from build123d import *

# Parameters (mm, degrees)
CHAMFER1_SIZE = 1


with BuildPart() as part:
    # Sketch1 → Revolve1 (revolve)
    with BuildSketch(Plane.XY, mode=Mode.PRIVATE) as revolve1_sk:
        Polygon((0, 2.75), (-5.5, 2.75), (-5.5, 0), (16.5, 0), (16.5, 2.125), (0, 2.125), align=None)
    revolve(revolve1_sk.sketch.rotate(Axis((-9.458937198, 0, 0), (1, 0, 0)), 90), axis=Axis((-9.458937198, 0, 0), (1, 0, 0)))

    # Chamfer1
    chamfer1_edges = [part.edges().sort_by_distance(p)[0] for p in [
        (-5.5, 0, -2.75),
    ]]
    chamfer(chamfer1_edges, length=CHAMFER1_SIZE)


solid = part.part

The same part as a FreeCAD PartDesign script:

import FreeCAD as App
import Part
import Sketcher

V = App.Vector
Q = App.Units.Quantity


def edges_at(feature, points):
    """Names of the edges that pass closest to the given points."""
    edges = feature.Shape.Edges
    near = lambda p: min(range(len(edges)), key=lambda i: edges[i].distToShape(Part.Vertex(*p))[0])
    return sorted({f"Edge{near(p) + 1}" for p in points})

doc = App.newDocument("Part")
params = doc.addObject("Spreadsheet::Sheet", "Params")
for row, (alias, value) in enumerate([
    ("sketch1_width", "22 mm"),
    ("sketch1_width2", "5.5 mm"),
    ("sketch1_height", "2.75 mm"),
    ("revolution_angle", "360 deg"),
    ("chamfer_size", "1 mm"),
], start=1):
    params.set(f"A{row}", alias)
    params.set(f"B{row}", "=" + value)
    params.setAlias(f"B{row}", alias)

body = doc.addObject("PartDesign::Body", "Body")

sketch1 = body.newObject("Sketcher::SketchObject", "Sketch")
sketch1.AttachmentSupport = (doc.getObject("XY_Plane"), [""])
sketch1.MapMode = "FlatFace"
sketch1.addGeometry(Part.LineSegment(V(0, 2.8, 0), V(-5.5, 2.8, 0)), False)
sketch1.addGeometry(Part.LineSegment(V(-5.5, 2.8, 0), V(-5.5, 0, 0)), False)
sketch1.addGeometry(Part.LineSegment(V(-5.5, 0, 0), V(16.5, 0, 0)), False)
sketch1.addGeometry(Part.LineSegment(V(16.5, 0, 0), V(16.5, 2.1, 0)), False)
sketch1.addGeometry(Part.LineSegment(V(16.5, 2.1, 0), V(0, 2.1, 0)), False)
sketch1.addGeometry(Part.LineSegment(V(0, 2.1, 0), V(0, 2.8, 0)), False)
sketch1.addConstraint(Sketcher.Constraint("Coincident", 0, 2, 1, 1))
sketch1.addConstraint(Sketcher.Constraint("Coincident", 1, 2, 2, 1))
sketch1.addConstraint(Sketcher.Constraint("Coincident", 2, 2, 3, 1))
sketch1.addConstraint(Sketcher.Constraint("Coincident", 3, 2, 4, 1))
sketch1.addConstraint(Sketcher.Constraint("Coincident", 4, 2, 5, 1))
sketch1.addConstraint(Sketcher.Constraint("Coincident", 5, 2, 0, 1))
sketch1.addConstraint(Sketcher.Constraint("Horizontal", 0))
sketch1.addConstraint(Sketcher.Constraint("Vertical", 1))
sketch1.addConstraint(Sketcher.Constraint("Horizontal", 2))
sketch1.addConstraint(Sketcher.Constraint("Vertical", 3))
sketch1.addConstraint(Sketcher.Constraint("Horizontal", 4))
sketch1.addConstraint(Sketcher.Constraint("Vertical", 5))
sketch1.addConstraint(Sketcher.Constraint("PointOnObject", 1, 2, -1))
sketch1.addConstraint(Sketcher.Constraint("PointOnObject", 4, 2, -2))
sketch1.addConstraint(Sketcher.Constraint("DistanceX", 2, 1, 2, 2, Q("22 mm")))
sketch1.addConstraint(Sketcher.Constraint("DistanceX", 0, 2, 0, 1, Q("5.5 mm")))
sketch1.addConstraint(Sketcher.Constraint("DistanceY", 1, 2, 1, 1, Q("2.75 mm")))
sketch1.addConstraint(Sketcher.Constraint("DistanceY", 3, 1, 3, 2, Q("2.125 mm")))
sketch1.setExpression("Constraints[14]", "Params.sketch1_width")
sketch1.setExpression("Constraints[15]", "Params.sketch1_width2")
sketch1.setExpression("Constraints[16]", "Params.sketch1_height")
revolution = body.newObject("PartDesign::Revolution", "Revolution")
revolution.Profile = sketch1
revolution.ReferenceAxis = (sketch1, ["H_Axis"])
revolution.setExpression("Angle", "Params.revolution_angle")
doc.recompute()

chamfer = body.newObject("PartDesign::Chamfer", "Chamfer")
chamfer.Base = (revolution, edges_at(revolution, [(-5.5, 0, -2.75)]))
chamfer.setExpression("Size", "Params.chamfer_size")

doc.recompute()
